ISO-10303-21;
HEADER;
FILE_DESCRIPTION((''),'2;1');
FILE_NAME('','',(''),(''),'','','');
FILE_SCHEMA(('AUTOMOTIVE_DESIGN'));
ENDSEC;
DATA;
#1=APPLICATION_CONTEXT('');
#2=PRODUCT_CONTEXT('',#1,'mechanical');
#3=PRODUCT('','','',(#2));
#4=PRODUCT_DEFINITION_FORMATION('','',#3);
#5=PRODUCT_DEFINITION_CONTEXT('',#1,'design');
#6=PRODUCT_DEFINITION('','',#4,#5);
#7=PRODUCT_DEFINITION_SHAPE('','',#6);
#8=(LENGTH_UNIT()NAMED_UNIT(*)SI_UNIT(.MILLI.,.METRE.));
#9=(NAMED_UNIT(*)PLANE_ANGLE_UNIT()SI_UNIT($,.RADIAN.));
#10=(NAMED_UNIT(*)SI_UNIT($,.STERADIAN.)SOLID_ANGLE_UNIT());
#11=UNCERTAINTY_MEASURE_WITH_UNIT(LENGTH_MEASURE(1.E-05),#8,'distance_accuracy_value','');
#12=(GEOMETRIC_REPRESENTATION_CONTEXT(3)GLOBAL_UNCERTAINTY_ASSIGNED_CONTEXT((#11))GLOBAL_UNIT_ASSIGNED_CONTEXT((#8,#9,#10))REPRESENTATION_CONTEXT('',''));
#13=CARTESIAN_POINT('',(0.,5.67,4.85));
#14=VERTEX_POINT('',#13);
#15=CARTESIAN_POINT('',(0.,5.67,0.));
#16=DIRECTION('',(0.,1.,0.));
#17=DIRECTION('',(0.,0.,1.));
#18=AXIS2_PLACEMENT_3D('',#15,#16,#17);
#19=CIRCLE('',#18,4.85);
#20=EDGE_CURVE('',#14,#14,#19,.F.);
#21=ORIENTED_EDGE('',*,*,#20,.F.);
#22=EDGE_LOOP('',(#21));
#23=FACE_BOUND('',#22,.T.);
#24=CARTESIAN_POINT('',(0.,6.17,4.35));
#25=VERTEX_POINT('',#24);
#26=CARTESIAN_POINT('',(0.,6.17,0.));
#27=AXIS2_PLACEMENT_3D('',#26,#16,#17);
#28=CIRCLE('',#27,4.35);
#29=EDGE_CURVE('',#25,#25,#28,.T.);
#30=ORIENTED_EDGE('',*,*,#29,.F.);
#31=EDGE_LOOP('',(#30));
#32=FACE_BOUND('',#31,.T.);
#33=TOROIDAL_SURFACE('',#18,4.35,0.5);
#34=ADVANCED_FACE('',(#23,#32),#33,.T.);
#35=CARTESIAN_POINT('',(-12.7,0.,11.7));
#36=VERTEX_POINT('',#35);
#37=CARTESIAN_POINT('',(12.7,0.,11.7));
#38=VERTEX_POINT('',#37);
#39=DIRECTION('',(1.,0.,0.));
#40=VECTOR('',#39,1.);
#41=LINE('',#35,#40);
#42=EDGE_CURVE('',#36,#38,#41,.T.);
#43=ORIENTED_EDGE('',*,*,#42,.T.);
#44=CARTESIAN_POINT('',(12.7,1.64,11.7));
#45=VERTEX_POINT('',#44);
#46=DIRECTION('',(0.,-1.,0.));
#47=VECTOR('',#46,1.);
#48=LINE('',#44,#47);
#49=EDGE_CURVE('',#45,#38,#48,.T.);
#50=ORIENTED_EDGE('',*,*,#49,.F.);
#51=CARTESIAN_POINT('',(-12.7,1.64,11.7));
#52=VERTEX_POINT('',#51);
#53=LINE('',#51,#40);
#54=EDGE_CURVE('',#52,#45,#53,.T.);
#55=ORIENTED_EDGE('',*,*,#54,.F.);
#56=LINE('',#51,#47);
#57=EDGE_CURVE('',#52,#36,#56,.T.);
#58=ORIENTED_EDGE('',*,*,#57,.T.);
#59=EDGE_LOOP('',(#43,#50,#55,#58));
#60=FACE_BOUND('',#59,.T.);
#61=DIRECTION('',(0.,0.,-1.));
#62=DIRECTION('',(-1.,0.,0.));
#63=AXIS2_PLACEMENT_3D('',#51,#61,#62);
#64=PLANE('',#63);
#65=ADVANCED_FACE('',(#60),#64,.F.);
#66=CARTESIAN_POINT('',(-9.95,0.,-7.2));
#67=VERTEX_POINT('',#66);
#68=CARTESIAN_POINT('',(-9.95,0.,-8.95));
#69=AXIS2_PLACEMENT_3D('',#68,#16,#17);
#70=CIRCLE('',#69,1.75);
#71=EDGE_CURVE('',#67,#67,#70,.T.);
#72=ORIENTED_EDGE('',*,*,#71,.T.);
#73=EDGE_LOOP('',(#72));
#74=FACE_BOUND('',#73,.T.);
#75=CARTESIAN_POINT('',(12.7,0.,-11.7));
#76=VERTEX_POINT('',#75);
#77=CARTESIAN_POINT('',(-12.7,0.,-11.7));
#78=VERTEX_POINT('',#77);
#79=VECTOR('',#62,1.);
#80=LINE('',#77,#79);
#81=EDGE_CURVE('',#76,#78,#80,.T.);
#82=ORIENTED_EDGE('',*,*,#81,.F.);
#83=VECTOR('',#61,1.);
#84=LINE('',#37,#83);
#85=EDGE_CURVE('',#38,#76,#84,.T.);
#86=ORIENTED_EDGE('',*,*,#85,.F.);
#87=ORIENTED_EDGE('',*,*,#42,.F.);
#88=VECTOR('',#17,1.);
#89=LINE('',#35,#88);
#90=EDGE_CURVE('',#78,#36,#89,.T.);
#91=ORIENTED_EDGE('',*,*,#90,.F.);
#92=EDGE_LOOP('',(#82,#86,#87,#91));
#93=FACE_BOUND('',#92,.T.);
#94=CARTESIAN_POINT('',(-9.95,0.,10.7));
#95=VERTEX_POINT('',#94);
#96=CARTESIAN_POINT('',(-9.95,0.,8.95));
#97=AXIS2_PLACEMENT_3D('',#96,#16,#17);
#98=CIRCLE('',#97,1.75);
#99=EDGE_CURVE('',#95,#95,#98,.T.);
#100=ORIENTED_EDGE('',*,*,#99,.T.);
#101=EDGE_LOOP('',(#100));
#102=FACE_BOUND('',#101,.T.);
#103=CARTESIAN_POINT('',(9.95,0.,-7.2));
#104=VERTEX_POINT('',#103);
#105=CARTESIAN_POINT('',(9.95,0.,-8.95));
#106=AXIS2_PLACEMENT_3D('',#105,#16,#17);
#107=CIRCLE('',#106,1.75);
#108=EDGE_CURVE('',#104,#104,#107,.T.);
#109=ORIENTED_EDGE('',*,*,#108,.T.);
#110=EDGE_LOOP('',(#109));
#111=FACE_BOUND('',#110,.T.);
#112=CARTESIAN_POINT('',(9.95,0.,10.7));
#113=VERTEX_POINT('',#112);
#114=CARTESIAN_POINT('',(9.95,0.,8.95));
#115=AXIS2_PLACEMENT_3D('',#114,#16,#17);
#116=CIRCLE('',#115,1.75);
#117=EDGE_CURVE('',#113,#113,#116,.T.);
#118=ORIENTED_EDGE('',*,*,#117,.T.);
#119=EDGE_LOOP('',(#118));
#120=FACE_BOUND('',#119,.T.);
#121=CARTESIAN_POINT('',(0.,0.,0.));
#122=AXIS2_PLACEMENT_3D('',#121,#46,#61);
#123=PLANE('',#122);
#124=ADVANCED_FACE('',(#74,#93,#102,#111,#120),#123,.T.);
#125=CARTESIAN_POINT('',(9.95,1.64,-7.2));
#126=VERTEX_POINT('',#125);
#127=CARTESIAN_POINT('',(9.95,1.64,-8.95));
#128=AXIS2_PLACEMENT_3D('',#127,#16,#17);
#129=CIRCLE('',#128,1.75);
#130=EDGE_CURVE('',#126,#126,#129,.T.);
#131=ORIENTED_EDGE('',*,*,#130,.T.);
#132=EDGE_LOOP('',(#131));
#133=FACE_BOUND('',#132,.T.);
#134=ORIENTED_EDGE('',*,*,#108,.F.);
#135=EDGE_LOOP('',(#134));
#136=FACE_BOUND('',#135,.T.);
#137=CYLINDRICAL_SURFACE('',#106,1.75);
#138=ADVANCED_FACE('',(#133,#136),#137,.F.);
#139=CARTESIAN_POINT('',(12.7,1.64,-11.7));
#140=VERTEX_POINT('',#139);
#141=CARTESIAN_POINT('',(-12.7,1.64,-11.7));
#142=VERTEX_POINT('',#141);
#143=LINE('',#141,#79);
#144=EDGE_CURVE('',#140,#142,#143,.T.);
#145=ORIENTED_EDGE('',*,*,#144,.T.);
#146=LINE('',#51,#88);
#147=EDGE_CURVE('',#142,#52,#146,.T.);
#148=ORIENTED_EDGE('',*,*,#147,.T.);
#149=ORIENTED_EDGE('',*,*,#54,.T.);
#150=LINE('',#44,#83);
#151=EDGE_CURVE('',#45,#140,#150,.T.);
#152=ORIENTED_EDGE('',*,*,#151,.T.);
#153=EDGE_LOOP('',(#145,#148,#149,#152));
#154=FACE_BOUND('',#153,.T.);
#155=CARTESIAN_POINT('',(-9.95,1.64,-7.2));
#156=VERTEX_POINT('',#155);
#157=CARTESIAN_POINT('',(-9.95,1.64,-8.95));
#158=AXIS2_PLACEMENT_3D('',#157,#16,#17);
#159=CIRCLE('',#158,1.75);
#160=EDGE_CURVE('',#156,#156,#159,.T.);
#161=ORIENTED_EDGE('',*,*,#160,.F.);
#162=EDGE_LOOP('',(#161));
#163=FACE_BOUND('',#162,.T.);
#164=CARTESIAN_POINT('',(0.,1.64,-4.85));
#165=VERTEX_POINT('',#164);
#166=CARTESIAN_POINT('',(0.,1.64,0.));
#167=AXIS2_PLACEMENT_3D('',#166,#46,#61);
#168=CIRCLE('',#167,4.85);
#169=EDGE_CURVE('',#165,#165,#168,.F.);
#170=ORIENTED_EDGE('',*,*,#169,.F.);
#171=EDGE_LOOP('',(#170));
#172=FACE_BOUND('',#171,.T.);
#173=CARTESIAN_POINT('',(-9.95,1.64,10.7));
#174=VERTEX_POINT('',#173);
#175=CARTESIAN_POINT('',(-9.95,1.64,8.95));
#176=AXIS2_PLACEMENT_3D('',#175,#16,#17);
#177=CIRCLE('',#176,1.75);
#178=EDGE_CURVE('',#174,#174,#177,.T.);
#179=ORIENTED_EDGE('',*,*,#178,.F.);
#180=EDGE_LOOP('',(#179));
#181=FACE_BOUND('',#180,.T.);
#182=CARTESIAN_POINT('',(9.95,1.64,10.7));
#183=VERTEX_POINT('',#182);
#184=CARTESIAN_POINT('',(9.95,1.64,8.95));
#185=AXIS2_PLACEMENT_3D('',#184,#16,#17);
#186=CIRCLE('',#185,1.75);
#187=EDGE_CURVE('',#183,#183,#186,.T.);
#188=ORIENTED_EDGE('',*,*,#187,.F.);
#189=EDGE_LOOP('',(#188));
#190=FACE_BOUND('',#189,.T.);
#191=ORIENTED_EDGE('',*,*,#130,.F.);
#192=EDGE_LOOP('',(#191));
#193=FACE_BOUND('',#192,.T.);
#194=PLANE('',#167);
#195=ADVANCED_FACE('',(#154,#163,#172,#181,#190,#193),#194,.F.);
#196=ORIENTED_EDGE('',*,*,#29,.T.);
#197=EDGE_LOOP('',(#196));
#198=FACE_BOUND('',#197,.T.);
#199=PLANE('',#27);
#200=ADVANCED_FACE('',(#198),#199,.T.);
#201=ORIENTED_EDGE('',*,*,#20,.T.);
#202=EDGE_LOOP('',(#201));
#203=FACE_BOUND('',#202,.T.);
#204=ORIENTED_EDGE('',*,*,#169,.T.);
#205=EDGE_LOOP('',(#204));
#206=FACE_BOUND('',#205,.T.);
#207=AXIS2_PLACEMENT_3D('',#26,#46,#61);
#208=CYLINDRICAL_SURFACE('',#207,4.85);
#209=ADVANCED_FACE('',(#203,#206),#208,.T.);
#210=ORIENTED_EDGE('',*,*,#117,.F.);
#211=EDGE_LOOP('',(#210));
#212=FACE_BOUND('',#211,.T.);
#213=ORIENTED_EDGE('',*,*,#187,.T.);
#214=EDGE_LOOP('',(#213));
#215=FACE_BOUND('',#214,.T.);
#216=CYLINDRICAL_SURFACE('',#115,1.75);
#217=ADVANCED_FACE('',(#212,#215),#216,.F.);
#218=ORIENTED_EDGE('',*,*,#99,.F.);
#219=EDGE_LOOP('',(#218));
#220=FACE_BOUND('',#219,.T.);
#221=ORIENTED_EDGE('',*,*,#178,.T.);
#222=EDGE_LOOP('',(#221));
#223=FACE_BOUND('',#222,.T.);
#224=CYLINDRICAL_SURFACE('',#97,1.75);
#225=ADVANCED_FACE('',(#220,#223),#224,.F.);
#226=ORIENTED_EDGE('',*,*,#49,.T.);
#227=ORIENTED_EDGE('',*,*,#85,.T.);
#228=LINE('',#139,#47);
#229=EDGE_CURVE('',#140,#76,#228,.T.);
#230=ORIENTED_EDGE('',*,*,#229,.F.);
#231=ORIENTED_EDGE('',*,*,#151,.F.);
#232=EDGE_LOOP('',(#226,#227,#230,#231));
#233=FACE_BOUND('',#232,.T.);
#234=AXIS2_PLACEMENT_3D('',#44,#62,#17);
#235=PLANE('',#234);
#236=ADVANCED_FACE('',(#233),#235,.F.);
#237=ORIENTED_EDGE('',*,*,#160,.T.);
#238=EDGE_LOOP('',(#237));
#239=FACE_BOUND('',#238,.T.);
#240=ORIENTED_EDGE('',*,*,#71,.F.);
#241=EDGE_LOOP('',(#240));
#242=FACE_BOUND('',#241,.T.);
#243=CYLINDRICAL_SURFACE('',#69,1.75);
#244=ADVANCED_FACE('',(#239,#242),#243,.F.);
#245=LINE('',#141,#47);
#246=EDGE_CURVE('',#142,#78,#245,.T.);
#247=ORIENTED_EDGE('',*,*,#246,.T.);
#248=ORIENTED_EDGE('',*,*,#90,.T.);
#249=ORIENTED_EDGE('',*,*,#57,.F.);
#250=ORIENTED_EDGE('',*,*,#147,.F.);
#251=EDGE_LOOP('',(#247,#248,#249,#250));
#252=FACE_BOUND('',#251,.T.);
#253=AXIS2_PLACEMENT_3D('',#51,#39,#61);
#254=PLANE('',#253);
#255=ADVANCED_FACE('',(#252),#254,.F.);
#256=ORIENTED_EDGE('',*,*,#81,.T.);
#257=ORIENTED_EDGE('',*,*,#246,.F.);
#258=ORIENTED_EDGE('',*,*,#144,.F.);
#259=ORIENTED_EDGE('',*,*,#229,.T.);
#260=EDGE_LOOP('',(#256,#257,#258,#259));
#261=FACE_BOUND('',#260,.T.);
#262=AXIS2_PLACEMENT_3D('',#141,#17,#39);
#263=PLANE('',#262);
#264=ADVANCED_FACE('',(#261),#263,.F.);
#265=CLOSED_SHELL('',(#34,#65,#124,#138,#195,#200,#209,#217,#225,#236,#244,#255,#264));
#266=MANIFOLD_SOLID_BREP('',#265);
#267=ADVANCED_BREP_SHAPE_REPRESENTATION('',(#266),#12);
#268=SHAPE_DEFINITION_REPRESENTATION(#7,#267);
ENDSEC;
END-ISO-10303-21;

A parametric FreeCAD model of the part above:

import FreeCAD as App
import Part
import Sketcher
from FreeCAD import Vector
Q = App.Units.Quantity


def edges_at(feature, points):
    """Names of the edges that pass closest to the given points."""
    edges = feature.Shape.Edges
    near = lambda p: min(range(len(edges)), key=lambda i: edges[i].distToShape(Part.Vertex(*p))[0])
    return sorted({f"Edge{near(p) + 1}" for p in points})

doc = App.newDocument("Part")
body = doc.addObject("PartDesign::Body", "Body")

# Sketch on XZ plane
sketch1 = doc.addObject("Sketcher::SketchObject", "Sketch")
body.addObject(sketch1)
sketch1.AttachmentSupport = (doc.XZ_Plane, [""])
sketch1.MapMode = "FlatFace"
sketch1.addGeometry(Part.LineSegment(Vector(-12.7, -11.7, 0), Vector(-12.7, 11.7, 0)), False)
sketch1.addGeometry(Part.LineSegment(Vector(-12.7, 11.7, 0), Vector(12.7, 11.7, 0)), False)
sketch1.addGeometry(Part.LineSegment(Vector(12.7, 11.7, 0), Vector(12.7, -11.7, 0)), False)
sketch1.addGeometry(Part.LineSegment(Vector(12.7, -11.7, 0), Vector(-12.7, -11.7, 0)), False)
sketch1.addConstraint(Sketcher.Constraint("Coincident", 0, 2, 1, 1))
sketch1.addConstraint(Sketcher.Constraint("Coincident", 1, 2, 2, 1))
sketch1.addConstraint(Sketcher.Constraint("Coincident", 2, 2, 3, 1))
sketch1.addConstraint(Sketcher.Constraint("Coincident", 3, 2, 0, 1))
sketch1.addConstraint(Sketcher.Constraint("Vertical", 0))
sketch1.addConstraint(Sketcher.Constraint("Horizontal", 1))
sketch1.addConstraint(Sketcher.Constraint("Vertical", 2))
sketch1.addConstraint(Sketcher.Constraint("Horizontal", 3))
sketch1.addConstraint(Sketcher.Constraint("Symmetric", 0, 2, 2, 2, -1, 1))
sketch1.addConstraint(Sketcher.Constraint("DistanceX", 1, 1, 1, 2, Q("25.4 mm")))
sketch1.addConstraint(Sketcher.Constraint("DistanceY", 0, 1, 0, 2, Q("23.4 mm")))
pad1 = doc.addObject("PartDesign::Pad", "Pad")
body.addObject(pad1)
pad1.Profile = sketch1
pad1.Length = 1.64
pad1.Reversed = True

# Sketch on XZ plane
sketch2 = doc.addObject("Sketcher::SketchObject", "Sketch001")
body.addObject(sketch2)
sketch2.AttachmentSupport = (doc.XZ_Plane, [""])
sketch2.MapMode = "FlatFace"
sketch2.AttachmentOffset = App.Placement(Vector(0, 0, -1.64), App.Rotation())
sketch2.addGeometry(Part.Circle(Vector(-9.95, 8.95, 0), Vector(0, 0, 1), 1.75), False)
sketch2.addGeometry(Part.Circle(Vector(9.95, 8.95, 0), Vector(0, 0, 1), 1.75), False)
sketch2.addGeometry(Part.Circle(Vector(9.95, -8.95, 0), Vector(0, 0, 1), 1.75), False)
sketch2.addGeometry(Part.Circle(Vector(-9.95, -8.95, 0), Vector(0, 0, 1), 1.75), False)
sketch2.addConstraint(Sketcher.Constraint("Equal", 0, 1))
sketch2.addConstraint(Sketcher.Constraint("Equal", 1, 2))
sketch2.addConstraint(Sketcher.Constraint("Equal", 2, 3))
sketch2.addConstraint(Sketcher.Constraint("Symmetric", 0, 3, 2, 3, -1, 1))
sketch2.addConstraint(Sketcher.Constraint("Symmetric", 1, 3, 3, 3, -1, 1))
sketch2.addConstraint(Sketcher.Constraint("Symmetric", 0, 3, 1, 3, -2))
sketch2.addConstraint(Sketcher.Constraint("Diameter", 0, Q("3.5 mm")))
sketch2.addConstraint(Sketcher.Constraint("DistanceX", 0, 3, 1, 3, Q("19.9 mm")))
sketch2.addConstraint(Sketcher.Constraint("DistanceY", 2, 3, 1, 3, Q("17.9 mm")))
pocket1 = doc.addObject("PartDesign::Pocket", "Pocket")
body.addObject(pocket1)
pocket1.Profile = sketch2
pocket1.Type = "ThroughAll"
pocket1.Reversed = True

# Sketch on XZ plane
sketch3 = doc.addObject("Sketcher::SketchObject", "Sketch002")
body.addObject(sketch3)
sketch3.AttachmentSupport = (doc.XZ_Plane, [""])
sketch3.MapMode = "FlatFace"
sketch3.AttachmentOffset = App.Placement(Vector(0, 0, -1.64), App.Rotation())
sketch3.addGeometry(Part.Circle(Vector(0, 0, 0), Vector(0, 0, 1), 4.85), False)
sketch3.addConstraint(Sketcher.Constraint("Coincident", 0, 3, -1, 1))
sketch3.addConstraint(Sketcher.Constraint("Diameter", 0, Q("9.7 mm")))
pad2 = doc.addObject("PartDesign::Pad", "Pad001")
body.addObject(pad2)
pad2.Profile = sketch3
pad2.Length = 4.53
pad2.Reversed = True
doc.recompute()

fillet = doc.addObject("PartDesign::Fillet", "Fillet")
body.addObject(fillet)
fillet.Base = (pad2, edges_at(pad2, [(-4.85, 6.17, 0)]))
fillet.Radius = 0.5

doc.recompute()
